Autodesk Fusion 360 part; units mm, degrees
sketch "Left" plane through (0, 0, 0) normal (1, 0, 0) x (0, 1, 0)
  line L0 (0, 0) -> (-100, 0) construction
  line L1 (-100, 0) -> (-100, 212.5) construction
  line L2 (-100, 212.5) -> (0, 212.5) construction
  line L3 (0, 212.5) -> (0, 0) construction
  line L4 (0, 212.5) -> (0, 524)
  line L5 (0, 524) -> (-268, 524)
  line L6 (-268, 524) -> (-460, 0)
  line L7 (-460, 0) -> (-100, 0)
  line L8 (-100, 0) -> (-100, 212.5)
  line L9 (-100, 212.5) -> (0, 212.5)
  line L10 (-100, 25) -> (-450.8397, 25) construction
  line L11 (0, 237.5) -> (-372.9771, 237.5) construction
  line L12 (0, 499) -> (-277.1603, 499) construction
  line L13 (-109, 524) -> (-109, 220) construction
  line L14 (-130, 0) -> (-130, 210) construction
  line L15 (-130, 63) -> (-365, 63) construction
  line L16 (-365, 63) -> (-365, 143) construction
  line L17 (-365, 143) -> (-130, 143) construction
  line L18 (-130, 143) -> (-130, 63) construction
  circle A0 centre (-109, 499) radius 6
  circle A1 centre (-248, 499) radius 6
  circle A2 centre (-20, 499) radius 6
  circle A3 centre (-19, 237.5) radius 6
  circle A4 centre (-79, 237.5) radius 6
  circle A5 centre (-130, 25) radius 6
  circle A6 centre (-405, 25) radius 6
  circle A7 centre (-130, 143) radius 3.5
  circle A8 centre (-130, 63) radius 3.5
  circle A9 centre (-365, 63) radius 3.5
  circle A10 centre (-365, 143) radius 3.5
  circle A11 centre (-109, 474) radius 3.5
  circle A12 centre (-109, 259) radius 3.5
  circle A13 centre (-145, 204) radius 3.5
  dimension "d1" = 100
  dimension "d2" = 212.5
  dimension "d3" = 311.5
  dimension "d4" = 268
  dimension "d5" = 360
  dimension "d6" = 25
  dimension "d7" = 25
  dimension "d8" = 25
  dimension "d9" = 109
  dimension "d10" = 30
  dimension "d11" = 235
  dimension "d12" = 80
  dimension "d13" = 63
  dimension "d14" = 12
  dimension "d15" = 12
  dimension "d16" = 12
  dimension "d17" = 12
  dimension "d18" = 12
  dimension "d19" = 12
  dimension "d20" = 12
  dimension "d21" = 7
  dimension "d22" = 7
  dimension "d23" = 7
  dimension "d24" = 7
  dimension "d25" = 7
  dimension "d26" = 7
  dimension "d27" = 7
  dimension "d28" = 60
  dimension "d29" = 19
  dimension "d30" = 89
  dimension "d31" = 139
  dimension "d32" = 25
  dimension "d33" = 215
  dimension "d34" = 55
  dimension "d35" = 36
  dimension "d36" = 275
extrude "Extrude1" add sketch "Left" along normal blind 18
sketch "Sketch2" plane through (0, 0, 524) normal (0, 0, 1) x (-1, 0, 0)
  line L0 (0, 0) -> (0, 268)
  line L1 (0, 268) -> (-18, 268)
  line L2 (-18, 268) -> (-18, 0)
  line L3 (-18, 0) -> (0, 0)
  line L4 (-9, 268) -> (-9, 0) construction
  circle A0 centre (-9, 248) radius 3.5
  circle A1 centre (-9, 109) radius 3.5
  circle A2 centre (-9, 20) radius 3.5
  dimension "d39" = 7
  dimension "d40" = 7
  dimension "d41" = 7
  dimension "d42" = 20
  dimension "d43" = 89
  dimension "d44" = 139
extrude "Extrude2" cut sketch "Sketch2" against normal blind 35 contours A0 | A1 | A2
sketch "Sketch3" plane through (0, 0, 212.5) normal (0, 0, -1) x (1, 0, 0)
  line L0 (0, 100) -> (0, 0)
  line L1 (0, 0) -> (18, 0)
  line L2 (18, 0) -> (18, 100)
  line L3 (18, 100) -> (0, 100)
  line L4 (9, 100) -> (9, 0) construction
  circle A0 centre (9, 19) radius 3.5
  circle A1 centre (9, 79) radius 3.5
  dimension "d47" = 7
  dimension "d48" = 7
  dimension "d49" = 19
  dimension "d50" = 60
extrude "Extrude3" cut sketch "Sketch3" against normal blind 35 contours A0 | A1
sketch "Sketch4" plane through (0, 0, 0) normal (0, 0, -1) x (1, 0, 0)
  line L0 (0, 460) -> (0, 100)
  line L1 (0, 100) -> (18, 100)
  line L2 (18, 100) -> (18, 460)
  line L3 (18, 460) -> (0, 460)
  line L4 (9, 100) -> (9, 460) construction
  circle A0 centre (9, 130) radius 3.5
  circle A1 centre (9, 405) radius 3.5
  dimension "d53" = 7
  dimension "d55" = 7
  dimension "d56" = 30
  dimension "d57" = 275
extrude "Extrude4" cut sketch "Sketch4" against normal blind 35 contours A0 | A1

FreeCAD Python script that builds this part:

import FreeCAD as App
import Part
import Sketcher

V = App.Vector

doc = App.newDocument("Part")
body = doc.addObject("PartDesign::Body", "Body")

# Sketch on YZ plane
sketch1 = body.newObject("Sketcher::SketchObject", "Sketch")
sketch1.AttachmentSupport = (doc.getObject("YZ_Plane"), [""])
sketch1.MapMode = "FlatFace"
sketch1.addGeometry([
    Part.LineSegment(V(-100, 212.5, 0), V(0, 212.5, 0)),  # 0
    Part.LineSegment(V(0, 212.5, 0), V(0, 524, 0)),  # 1
    Part.LineSegment(V(0, 524, 0), V(-268, 524, 0)),  # 2
    Part.LineSegment(V(-268, 524, 0), V(-460, 0, 0)),  # 3
    Part.LineSegment(V(-460, 0, 0), V(-100, 0, 0)),  # 4
    Part.LineSegment(V(-100, 0, 0), V(-100, 212.5, 0)),  # 5
    Part.Circle(V(-405, 25, 0), V(0, 0, 1), 6),  # 6
    Part.Circle(V(-365, 63, 0), V(0, 0, 1), 3.5),  # 7
    Part.Circle(V(-365, 143, 0), V(0, 0, 1), 3.5),  # 8
    Part.Circle(V(-130, 25, 0), V(0, 0, 1), 6),  # 9
    Part.Circle(V(-130, 63, 0), V(0, 0, 1), 3.5),  # 10
    Part.Circle(V(-130, 143, 0), V(0, 0, 1), 3.5),  # 11
    Part.Circle(V(-145, 204, 0), V(0, 0, 1), 3.5),  # 12
    Part.Circle(V(-109, 259, 0), V(0, 0, 1), 3.5),  # 13
    Part.Circle(V(-79, 237.5, 0), V(0, 0, 1), 6),  # 14
    Part.Circle(V(-19, 237.5, 0), V(0, 0, 1), 6),  # 15
    Part.Circle(V(-248, 499, 0), V(0, 0, 1), 6),  # 16
    Part.Circle(V(-109, 474, 0), V(0, 0, 1), 3.5),  # 17
    Part.Circle(V(-109, 499, 0), V(0, 0, 1), 6),  # 18
    Part.Circle(V(-20, 499, 0), V(0, 0, 1), 6),  # 19
], False)
sketch1.addConstraint([
    Sketcher.Constraint("Coincident", 0, 2, 1, 1),
    Sketcher.Constraint("Coincident", 1, 2, 2, 1),
    Sketcher.Constraint("Coincident", 2, 2, 3, 1),
    Sketcher.Constraint("Coincident", 3, 2, 4, 1),
    Sketcher.Constraint("Coincident", 4, 2, 5, 1),
    Sketcher.Constraint("Coincident", 5, 2, 0, 1),
    Sketcher.Constraint("Horizontal", 0),
    Sketcher.Constraint("Vertical", 1),
    Sketcher.Constraint("Horizontal", 2),
    Sketcher.Constraint("Horizontal", 4),
    Sketcher.Constraint("Vertical", 5),
    Sketcher.Constraint("Equal", 7, 8),
    Sketcher.Constraint("Equal", 6, 9),
    Sketcher.Constraint("Equal", 8, 10),
    Sketcher.Constraint("Equal", 10, 11),
    Sketcher.Constraint("Equal", 11, 12),
    Sketcher.Constraint("Equal", 12, 13),
    Sketcher.Constraint("Equal", 9, 14),
    Sketcher.Constraint("Equal", 14, 15),
    Sketcher.Constraint("Equal", 15, 16),
    Sketcher.Constraint("Equal", 13, 17),
    Sketcher.Constraint("Equal", 16, 18),
    Sketcher.Constraint("Equal", 18, 19),
    Sketcher.Constraint("PointOnObject", 0, 2, -2),
    Sketcher.Constraint("PointOnObject", 3, 2, -1),
    Sketcher.Constraint("Horizontal", 6, 3, 9, 3),
    Sketcher.Constraint("Horizontal", 7, 3, 10, 3),
    Sketcher.Constraint("Horizontal", 8, 3, 11, 3),
    Sketcher.Constraint("Horizontal", 14, 3, 15, 3),
    Sketcher.Constraint("Horizontal", 16, 3, 18, 3),
    Sketcher.Constraint("Horizontal", 18, 3, 19, 3),
    Sketcher.Constraint("Vertical", 7, 3, 8, 3),
    Sketcher.Constraint("Vertical", 9, 3, 10, 3),
    Sketcher.Constraint("Vertical", 10, 3, 11, 3),
    Sketcher.Constraint("Vertical", 13, 3, 17, 3),
    Sketcher.Constraint("Vertical", 17, 3, 18, 3),
    Sketcher.Constraint("Diameter", 6, 12.0),
    Sketcher.Constraint("Diameter", 7, 7.0),
    Sketcher.Constraint("DistanceX", 0, 1, 0, 2, 100.0),
    Sketcher.Constraint("DistanceX", 2, 2, 2, 1, 268.0),
    Sketcher.Constraint("DistanceX", 4, 1, 4, 2, 360.0),
    Sketcher.Constraint("DistanceY", 1, 1, 1, 2, 311.5),
    Sketcher.Constraint("DistanceY", 5, 1, 5, 2, 212.5),
    Sketcher.Constraint("DistanceY", -1, 1, 6, 3, 25.0),
    Sketcher.Constraint("DistanceY", -1, 1, 7, 3, 63.0),
    Sketcher.Constraint("DistanceX", 13, 3, -1, 1, 109.0),
    Sketcher.Constraint("DistanceX", 15, 3, -1, 1, 19.0),
    Sketcher.Constraint("DistanceY", 7, 3, 8, 3, 80.0),
    Sketcher.Constraint("DistanceX", 7, 3, 9, 3, 235.0),
    Sketcher.Constraint("DistanceX", 6, 3, 9, 3, 275.0),
    Sketcher.Constraint("DistanceX", 12, 3, 13, 3, 36.0),
    Sketcher.Constraint("DistanceY", 12, 3, 13, 3, 55.0),
    Sketcher.Constraint("DistanceX", 13, 3, 14, 3, 30.0),
    Sketcher.Constraint("DistanceX", 16, 3, 13, 3, 139.0),
    Sketcher.Constraint("DistanceY", 17, 3, 16, 3, 25.0),
    Sketcher.Constraint("DistanceY", 13, 3, 17, 3, 215.0),
    Sketcher.Constraint("DistanceX", 18, 3, 19, 3, 89.0),
    Sketcher.Constraint("DistanceY", 0, 2, 15, 3, 25.0),
    Sketcher.Constraint("DistanceY", 19, 3, 1, 2, 25.0),
    Sketcher.Constraint("DistanceX", 3, 2, 6, 3, 55.0),
])
pad1 = body.newObject("PartDesign::Pad", "Pad")
pad1.Profile = sketch1
pad1.Length = 18

# Sketch on XY plane
sketch2 = body.newObject("Sketcher::SketchObject", "Sketch001")
sketch2.AttachmentSupport = (doc.getObject("XY_Plane"), [""])
sketch2.MapMode = "FlatFace"
sketch2.AttachmentOffset = App.Placement(V(0, 0, 524), App.Rotation())
sketch2.addGeometry([
    Part.Circle(V(9, -248, 0), V(0, 0, 1), 3.5),
    Part.Circle(V(9, -109, 0), V(0, 0, 1), 3.5),
    Part.Circle(V(9, -20, 0), V(0, 0, 1), 3.5),
], False)
sketch2.addConstraint([
    Sketcher.Constraint("Equal", 0, 1),
    Sketcher.Constraint("Equal", 1, 2),
    Sketcher.Constraint("Vertical", 0, 3, 1, 3),
    Sketcher.Constraint("Vertical", 1, 3, 2, 3),
    Sketcher.Constraint("Diameter", 0, 7.0),
    Sketcher.Constraint("DistanceY", 2, 3, -1, 1, 20.0),
    Sketcher.Constraint("DistanceY", 0, 3, 1, 3, 139.0),
    Sketcher.Constraint("DistanceY", 1, 3, 2, 3, 89.0),
    Sketcher.Constraint("DistanceX", -1, 1, 0, 3, 9.0),
])
pocket1 = body.newObject("PartDesign::Pocket", "Pocket")
pocket1.Profile = sketch2
pocket1.Length = 35

# Sketch on XY plane
sketch3 = body.newObject("Sketcher::SketchObject", "Sketch002")
sketch3.AttachmentSupport = (doc.getObject("XY_Plane"), [""])
sketch3.MapMode = "FlatFace"
sketch3.AttachmentOffset = App.Placement(V(0, 0, 212.5), App.Rotation())
sketch3.addGeometry([
    Part.Circle(V(9, -19, 0), V(0, 0, 1), 3.5),
    Part.Circle(V(9, -79, 0), V(0, 0, 1), 3.5),
], False)
sketch3.addConstraint([
    Sketcher.Constraint("Equal", 0, 1),
    Sketcher.Constraint("Vertical", 0, 3, 1, 3),
    Sketcher.Constraint("Diameter", 0, 7.0),
    Sketcher.Constraint("DistanceY", 0, 3, -1, 1, 19.0),
    Sketcher.Constraint("DistanceY", 1, 3, 0, 3, 60.0),
    Sketcher.Constraint("DistanceX", -1, 1, 0, 3, 9.0),
])
pocket2 = body.newObject("PartDesign::Pocket", "Pocket001")
pocket2.Profile = sketch3
pocket2.Length = 35
pocket2.Reversed = True

# Sketch on XY plane
sketch4 = body.newObject("Sketcher::SketchObject", "Sketch003")
sketch4.AttachmentSupport = (doc.getObject("XY_Plane"), [""])
sketch4.MapMode = "FlatFace"
sketch4.addGeometry([
    Part.Circle(V(9, -130, 0), V(0, 0, 1), 3.5),
    Part.Circle(V(9, -405, 0), V(0, 0, 1), 3.5),
], False)
sketch4.addConstraint([
    Sketcher.Constraint("Equal", 0, 1),
    Sketcher.Constraint("Vertical", 0, 3, 1, 3),
    Sketcher.Constraint("Diameter", 0, 7.0),
    Sketcher.Constraint("DistanceY", 1, 3, 0, 3, 275.0),
    Sketcher.Constraint("DistanceX", -1, 1, 0, 3, 9.0),
    Sketcher.Constraint("DistanceY", 0, 3, -1, 1, 130.0),
])
pocket3 = body.newObject("PartDesign::Pocket", "Pocket002")
pocket3.Profile = sketch4
pocket3.Length = 35
pocket3.Reversed = True

doc.recompute()
